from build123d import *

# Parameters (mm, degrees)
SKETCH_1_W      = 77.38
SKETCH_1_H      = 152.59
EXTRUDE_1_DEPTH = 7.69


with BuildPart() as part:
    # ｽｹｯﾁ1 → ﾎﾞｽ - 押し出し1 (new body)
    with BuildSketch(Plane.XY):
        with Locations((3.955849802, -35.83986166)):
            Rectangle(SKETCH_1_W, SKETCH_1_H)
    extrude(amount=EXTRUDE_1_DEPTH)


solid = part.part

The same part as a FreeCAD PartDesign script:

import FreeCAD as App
import Part
import Sketcher

V = App.Vector

doc = App.newDocument("Part")
params = doc.addObject("Spreadsheet::Sheet", "Params")
for row, (alias, value) in enumerate([
    ("sketch1_width", "77.38 mm"),
    ("sketch1_height", "152.59 mm"),
    ("pad1_length", "7.69 mm"),
], start=1):
    params.set(f"A{row}", alias)
    params.set(f"B{row}", "=" + value)
    params.setAlias(f"B{row}", alias)

body = doc.addObject("PartDesign::Body", "Body")

# Sketch on XY plane
sketch1 = body.newObject("Sketcher::SketchObject", "Sketch")
sketch1.AttachmentSupport = (doc.getObject("XY_Plane"), [""])
sketch1.MapMode = "FlatFace"
sketch1.addGeometry(Part.LineSegment(V(-34.73415, 40.455138, 0), V(-34.73415, -112.134862, 0)), False)
sketch1.addGeometry(Part.LineSegment(V(-34.73415, -112.134862, 0), V(42.64585, -112.134862, 0)), False)
sketch1.addGeometry(Part.LineSegment(V(42.64585, -112.134862, 0), V(42.64585, 40.455138, 0)), False)
sketch1.addGeometry(Part.LineSegment(V(42.64585, 40.455138, 0), V(-34.73415, 40.455138, 0)), False)
sketch1.addConstraint(Sketcher.Constraint("Coincident", 0, 2, 1, 1))
sketch1.addConstraint(Sketcher.Constraint("Coincident", 1, 2, 2, 1))
sketch1.addConstraint(Sketcher.Constraint("Coincident", 2, 2, 3, 1))
sketch1.addConstraint(Sketcher.Constraint("Coincident", 3, 2, 0, 1))
sketch1.addConstraint(Sketcher.Constraint("Vertical", 0))
sketch1.addConstraint(Sketcher.Constraint("Horizontal", 1))
sketch1.addConstraint(Sketcher.Constraint("Vertical", 2))
sketch1.addConstraint(Sketcher.Constraint("Horizontal", 3))
sketch1.addConstraint(Sketcher.Constraint("DistanceX", 1, 1, 1, 2, 77.38))
sketch1.addConstraint(Sketcher.Constraint("DistanceY", 0, 2, 0, 1, 152.59))
sketch1.addConstraint(Sketcher.Constraint("DistanceX", 0, 2, -1, 1, 34.73415))
sketch1.addConstraint(Sketcher.Constraint("DistanceY", 0, 2, -1, 1, 112.134862))
sketch1.setExpression("Constraints[8]", "Params.sketch1_width")
sketch1.setExpression("Constraints[9]", "Params.sketch1_height")
pad1 = body.newObject("PartDesign::Pad", "Pad")
pad1.Profile = sketch1
pad1.setExpression("Length", "Params.pad1_length")

doc.recompute()
